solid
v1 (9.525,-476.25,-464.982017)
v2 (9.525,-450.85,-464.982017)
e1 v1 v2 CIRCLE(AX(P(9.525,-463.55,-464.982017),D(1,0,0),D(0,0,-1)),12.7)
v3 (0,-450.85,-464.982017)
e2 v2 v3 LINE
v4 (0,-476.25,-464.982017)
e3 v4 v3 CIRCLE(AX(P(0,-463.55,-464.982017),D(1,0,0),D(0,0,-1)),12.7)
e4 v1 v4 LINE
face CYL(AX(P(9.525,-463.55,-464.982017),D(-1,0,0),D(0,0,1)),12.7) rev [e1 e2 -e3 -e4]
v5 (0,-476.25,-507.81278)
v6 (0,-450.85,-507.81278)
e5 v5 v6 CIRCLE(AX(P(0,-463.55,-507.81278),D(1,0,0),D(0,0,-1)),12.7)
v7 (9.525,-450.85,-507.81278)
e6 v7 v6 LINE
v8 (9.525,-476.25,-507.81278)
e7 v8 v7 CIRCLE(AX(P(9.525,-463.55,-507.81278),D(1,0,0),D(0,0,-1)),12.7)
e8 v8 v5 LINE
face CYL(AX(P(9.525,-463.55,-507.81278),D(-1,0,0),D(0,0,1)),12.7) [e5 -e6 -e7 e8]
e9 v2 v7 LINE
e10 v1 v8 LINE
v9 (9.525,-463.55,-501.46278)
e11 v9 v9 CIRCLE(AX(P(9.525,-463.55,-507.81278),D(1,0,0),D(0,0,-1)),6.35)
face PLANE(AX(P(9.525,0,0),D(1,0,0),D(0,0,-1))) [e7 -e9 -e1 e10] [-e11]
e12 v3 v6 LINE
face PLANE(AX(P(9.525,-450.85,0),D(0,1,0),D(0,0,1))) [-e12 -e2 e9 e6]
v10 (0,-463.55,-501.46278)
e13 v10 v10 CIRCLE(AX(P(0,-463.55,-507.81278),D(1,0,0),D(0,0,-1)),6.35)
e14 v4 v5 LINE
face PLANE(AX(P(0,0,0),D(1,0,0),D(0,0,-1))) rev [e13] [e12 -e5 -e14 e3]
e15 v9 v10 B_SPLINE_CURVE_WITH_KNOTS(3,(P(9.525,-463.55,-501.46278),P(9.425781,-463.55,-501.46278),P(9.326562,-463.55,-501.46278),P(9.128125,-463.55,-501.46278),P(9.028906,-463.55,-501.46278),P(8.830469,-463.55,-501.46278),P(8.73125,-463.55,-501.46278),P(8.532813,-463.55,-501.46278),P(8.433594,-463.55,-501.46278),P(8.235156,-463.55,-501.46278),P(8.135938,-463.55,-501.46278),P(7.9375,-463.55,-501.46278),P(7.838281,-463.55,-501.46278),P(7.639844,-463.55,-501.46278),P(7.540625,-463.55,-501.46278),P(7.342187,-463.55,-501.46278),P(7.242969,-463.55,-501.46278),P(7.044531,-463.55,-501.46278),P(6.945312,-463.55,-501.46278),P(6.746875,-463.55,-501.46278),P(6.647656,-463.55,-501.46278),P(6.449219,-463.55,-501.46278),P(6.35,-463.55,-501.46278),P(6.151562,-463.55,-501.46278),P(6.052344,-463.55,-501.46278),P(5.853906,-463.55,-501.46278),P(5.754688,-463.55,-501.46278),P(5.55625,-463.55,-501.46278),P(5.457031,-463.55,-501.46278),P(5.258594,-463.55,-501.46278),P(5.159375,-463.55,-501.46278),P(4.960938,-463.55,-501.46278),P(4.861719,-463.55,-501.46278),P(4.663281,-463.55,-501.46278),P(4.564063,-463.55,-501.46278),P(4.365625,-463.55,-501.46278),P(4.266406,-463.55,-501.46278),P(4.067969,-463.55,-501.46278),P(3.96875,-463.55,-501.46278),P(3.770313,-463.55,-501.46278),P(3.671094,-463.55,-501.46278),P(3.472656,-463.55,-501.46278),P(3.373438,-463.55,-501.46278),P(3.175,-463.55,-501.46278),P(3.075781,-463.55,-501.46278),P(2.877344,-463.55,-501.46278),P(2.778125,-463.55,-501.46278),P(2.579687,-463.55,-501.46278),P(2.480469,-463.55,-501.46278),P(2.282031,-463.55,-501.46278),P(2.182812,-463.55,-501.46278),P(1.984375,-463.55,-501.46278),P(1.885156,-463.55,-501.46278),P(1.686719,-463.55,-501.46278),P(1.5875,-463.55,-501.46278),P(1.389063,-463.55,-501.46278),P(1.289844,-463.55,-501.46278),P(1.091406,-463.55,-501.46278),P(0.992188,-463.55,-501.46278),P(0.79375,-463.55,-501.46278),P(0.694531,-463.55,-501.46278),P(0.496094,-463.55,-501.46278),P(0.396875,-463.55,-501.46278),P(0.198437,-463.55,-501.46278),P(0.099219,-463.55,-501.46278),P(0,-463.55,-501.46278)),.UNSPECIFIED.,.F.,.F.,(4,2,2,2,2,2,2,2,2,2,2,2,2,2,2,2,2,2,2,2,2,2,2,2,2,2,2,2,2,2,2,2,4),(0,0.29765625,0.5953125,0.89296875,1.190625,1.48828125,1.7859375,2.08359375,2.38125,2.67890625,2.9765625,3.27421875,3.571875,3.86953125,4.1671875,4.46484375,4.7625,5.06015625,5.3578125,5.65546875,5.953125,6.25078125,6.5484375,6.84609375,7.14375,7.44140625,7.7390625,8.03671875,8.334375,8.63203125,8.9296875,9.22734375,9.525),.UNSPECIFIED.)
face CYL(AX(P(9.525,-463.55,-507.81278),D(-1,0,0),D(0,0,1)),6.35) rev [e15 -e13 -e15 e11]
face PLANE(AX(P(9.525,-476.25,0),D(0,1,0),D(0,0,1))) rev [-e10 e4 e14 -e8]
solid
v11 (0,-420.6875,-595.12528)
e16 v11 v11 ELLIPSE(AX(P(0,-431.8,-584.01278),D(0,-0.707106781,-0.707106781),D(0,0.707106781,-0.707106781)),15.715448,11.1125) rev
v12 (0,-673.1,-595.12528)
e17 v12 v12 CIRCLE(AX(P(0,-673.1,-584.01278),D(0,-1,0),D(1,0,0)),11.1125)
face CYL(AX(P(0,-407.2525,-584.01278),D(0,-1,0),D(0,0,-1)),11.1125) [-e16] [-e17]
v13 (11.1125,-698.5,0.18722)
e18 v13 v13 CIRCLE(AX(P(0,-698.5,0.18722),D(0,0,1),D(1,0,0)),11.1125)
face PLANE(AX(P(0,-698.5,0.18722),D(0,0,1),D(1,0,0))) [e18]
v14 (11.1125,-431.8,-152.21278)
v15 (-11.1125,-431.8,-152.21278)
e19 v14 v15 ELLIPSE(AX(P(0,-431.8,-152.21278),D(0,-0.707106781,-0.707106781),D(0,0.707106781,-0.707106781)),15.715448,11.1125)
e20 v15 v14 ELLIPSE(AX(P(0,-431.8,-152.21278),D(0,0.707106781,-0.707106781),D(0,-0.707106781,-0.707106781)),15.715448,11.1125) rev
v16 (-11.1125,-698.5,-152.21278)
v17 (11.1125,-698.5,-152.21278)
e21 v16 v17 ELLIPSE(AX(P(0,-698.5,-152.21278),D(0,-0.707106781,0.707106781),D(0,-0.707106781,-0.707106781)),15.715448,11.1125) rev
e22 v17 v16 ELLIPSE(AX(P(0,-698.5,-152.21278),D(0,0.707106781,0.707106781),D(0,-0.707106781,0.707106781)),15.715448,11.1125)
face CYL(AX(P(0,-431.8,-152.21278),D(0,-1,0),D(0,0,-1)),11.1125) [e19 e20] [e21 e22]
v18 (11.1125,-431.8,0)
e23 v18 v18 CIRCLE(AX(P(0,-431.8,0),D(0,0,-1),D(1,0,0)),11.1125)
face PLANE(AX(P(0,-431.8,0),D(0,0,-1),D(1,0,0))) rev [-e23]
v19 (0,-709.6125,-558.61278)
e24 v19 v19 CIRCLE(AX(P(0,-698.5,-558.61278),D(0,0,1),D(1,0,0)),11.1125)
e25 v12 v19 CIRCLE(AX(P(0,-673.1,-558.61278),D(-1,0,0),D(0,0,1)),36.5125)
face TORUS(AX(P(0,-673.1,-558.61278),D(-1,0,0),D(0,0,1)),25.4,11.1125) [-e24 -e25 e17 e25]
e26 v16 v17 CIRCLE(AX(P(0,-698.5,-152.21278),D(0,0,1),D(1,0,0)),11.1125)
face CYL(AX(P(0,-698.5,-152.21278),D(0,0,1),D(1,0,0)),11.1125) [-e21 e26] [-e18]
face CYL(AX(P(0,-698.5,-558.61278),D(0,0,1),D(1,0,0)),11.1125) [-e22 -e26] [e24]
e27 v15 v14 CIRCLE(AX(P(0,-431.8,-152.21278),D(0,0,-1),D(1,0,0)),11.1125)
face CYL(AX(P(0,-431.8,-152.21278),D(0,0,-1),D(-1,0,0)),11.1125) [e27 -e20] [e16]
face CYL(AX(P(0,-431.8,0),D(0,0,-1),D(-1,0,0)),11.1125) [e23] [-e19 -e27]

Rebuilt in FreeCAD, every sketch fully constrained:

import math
import FreeCAD as App
import Part
import Sketcher

V = App.Vector
Q = App.Units.Quantity

doc = App.newDocument("Part")
body = doc.addObject("PartDesign::Body", "Body")

# Sketch on XY plane
sketch1 = body.newObject("Sketcher::SketchObject", "Sketch")
sketch1.AttachmentSupport = (doc.getObject("XY_Plane"), [""])
sketch1.MapMode = "FlatFace"
sketch1.addGeometry(Part.Circle(V(0, -698, 0), V(0, 0, 1), 11), False)
sketch1.addConstraint(Sketcher.Constraint("PointOnObject", 0, 3, -2))
sketch1.addConstraint(Sketcher.Constraint("Diameter", 0, Q("0.875 in")))
sketch1.addConstraint(Sketcher.Constraint("DistanceY", 0, 3, -1, 1, Q("27.5 in")))

# Sketch on YZ plane
sketch2 = body.newObject("Sketcher::SketchObject", "Sketch001")
sketch2.AttachmentSupport = (doc.getObject("YZ_Plane"), [""])
sketch2.MapMode = "FlatFace"
sketch2.addGeometry(Part.LineSegment(V(-432, 0, 0), V(-432, -584, 0)), False)
sketch2.addGeometry(Part.LineSegment(V(-432, -584, 0), V(-673, -584, 0)), False)
sketch2.addGeometry(Part.ArcOfCircle(Part.Circle(V(-673, -559, 0), V(0, 0, 1), 25), math.radians(180), math.radians(270)), False)
sketch2.addGeometry(Part.LineSegment(V(-698, -559, 0), V(-698, 0, 0)), False)
sketch2.addConstraint(Sketcher.Constraint("Coincident", 0, 2, 1, 1))
sketch2.addConstraint(Sketcher.Constraint("Tangent", 1, 2, 2, 2))
sketch2.addConstraint(Sketcher.Constraint("Tangent", 2, 1, 3, 1))
sketch2.addConstraint(Sketcher.Constraint("Vertical", 0))
sketch2.addConstraint(Sketcher.Constraint("Horizontal", 1))
sketch2.addConstraint(Sketcher.Constraint("Vertical", 3))
sketch2.addConstraint(Sketcher.Constraint("PointOnObject", 0, 1, -1))
sketch2.addConstraint(Sketcher.Constraint("Radius", 2, Q("1 in")))
sketch2.addConstraint(Sketcher.Constraint("DistanceY", 3, 1, 3, 2, Q("22 in")))
sketch2.addConstraint(Sketcher.Constraint("DistanceX", 1, 2, 1, 1, Q("9.5 in")))
sketch2.addConstraint(Sketcher.Constraint("DistanceX", 0, 1, -1, 1, Q("17 in")))
sketch2.addConstraint(Sketcher.Constraint("DistanceY", 0, 2, 0, 1, Q("584.01278 mm")))
doc.recompute()

additivepipe = body.newObject("PartDesign::AdditivePipe", "AdditivePipe")
additivepipe.Profile = sketch1
additivepipe.Spine = (sketch2, ["Edge1", "Edge2", "Edge3", "Edge4"])
additivepipe.Transition = "Right corner"

# Sketch on XY plane
sketch3 = body.newObject("Sketcher::SketchObject", "Sketch002")
sketch3.AttachmentSupport = (doc.getObject("XY_Plane"), [""])
sketch3.MapMode = "FlatFace"
sketch3.addGeometry(Part.Circle(V(0, -698, 0), V(0, 0, 1), 11), False)
sketch3.addConstraint(Sketcher.Constraint("PointOnObject", 0, 3, -2))
sketch3.addConstraint(Sketcher.Constraint("Diameter", 0, Q("0.875 in")))
sketch3.addConstraint(Sketcher.Constraint("DistanceY", 0, 3, -1, 1, Q("27.5 in")))

# Sketch on YZ plane
sketch4 = body.newObject("Sketcher::SketchObject", "Sketch003")
sketch4.AttachmentSupport = (doc.getObject("YZ_Plane"), [""])
sketch4.MapMode = "FlatFace"
sketch4.addGeometry(Part.LineSegment(V(-698, 0, 0), V(-698, -152, 0)), False)
sketch4.addGeometry(Part.LineSegment(V(-698, -152, 0), V(-432, -152, 0)), False)
sketch4.addConstraint(Sketcher.Constraint("Coincident", 0, 2, 1, 1))
sketch4.addConstraint(Sketcher.Constraint("Vertical", 0))
sketch4.addConstraint(Sketcher.Constraint("Horizontal", 1))
sketch4.addConstraint(Sketcher.Constraint("DistanceY", 0, 2, 0, 1, Q("6 in")))
sketch4.addConstraint(Sketcher.Constraint("DistanceX", 1, 1, 1, 2, Q("10.5 in")))
sketch4.addConstraint(Sketcher.Constraint("DistanceX", 1, 2, -1, 1, Q("17 in")))
sketch4.addConstraint(Sketcher.Constraint("DistanceY", -1, 1, 0, 1, Q("0.18722 mm")))
doc.recompute()

additivepipe2 = body.newObject("PartDesign::AdditivePipe", "AdditivePipe001")
additivepipe2.Profile = sketch3
additivepipe2.Spine = (sketch4, ["Edge1", "Edge2"])
additivepipe2.Transition = "Right corner"
body2 = doc.addObject("PartDesign::Body", "Body001")

# Sketch on YZ plane
sketch5 = body2.newObject("Sketcher::SketchObject", "Sketch004")
sketch5.AttachmentSupport = (doc.getObject("YZ_Plane001"), [""])
sketch5.MapMode = "FlatFace"
sketch5.addGeometry(Part.ArcOfCircle(Part.Circle(V(-464, -465, 0), V(0, 0, 1), 13), math.radians(180), math.radians(360)), False)
sketch5.addGeometry(Part.LineSegment(V(-476, -465, 0), V(-476, -508, 0)), False)
sketch5.addGeometry(Part.ArcOfCircle(Part.Circle(V(-464, -508, 0), V(0, 0, 1), 13), math.radians(180), math.radians(360)), False)
sketch5.addGeometry(Part.LineSegment(V(-451, -508, 0), V(-451, -465, 0)), False)
sketch5.addGeometry(Part.Circle(V(-464, -508, 0), V(0, 0, 1), 6), False)
sketch5.addConstraint(Sketcher.Constraint("Tangent", 0, 1, 1, 1))
sketch5.addConstraint(Sketcher.Constraint("Tangent", 1, 2, 2, 1))
sketch5.addConstraint(Sketcher.Constraint("Tangent", 2, 2, 3, 1))
sketch5.addConstraint(Sketcher.Constraint("Tangent", 3, 2, 0, 2))
sketch5.addConstraint(Sketcher.Constraint("Vertical", 1))
sketch5.addConstraint(Sketcher.Constraint("Vertical", 3))
sketch5.addConstraint(Sketcher.Constraint("Coincident", 4, 3, 2, 3))
sketch5.addConstraint(Sketcher.Constraint("Diameter", 4, Q("0.5 in")))
sketch5.addConstraint(Sketcher.Constraint("Radius", 0, Q("0.5 in")))
sketch5.addConstraint(Sketcher.Constraint("DistanceX", 0, 3, -1, 1, Q("18.25 in")))
sketch5.addConstraint(Sketcher.Constraint("DistanceY", 1, 2, 1, 1, Q("42.830762 mm")))
sketch5.addConstraint(Sketcher.Constraint("DistanceY", 2, 3, -1, 1, Q("507.81278 mm")))
pad1 = body2.newObject("PartDesign::Pad", "Pad")
pad1.Profile = sketch5
pad1.Length = Q("0.375 in")

doc.recompute()
